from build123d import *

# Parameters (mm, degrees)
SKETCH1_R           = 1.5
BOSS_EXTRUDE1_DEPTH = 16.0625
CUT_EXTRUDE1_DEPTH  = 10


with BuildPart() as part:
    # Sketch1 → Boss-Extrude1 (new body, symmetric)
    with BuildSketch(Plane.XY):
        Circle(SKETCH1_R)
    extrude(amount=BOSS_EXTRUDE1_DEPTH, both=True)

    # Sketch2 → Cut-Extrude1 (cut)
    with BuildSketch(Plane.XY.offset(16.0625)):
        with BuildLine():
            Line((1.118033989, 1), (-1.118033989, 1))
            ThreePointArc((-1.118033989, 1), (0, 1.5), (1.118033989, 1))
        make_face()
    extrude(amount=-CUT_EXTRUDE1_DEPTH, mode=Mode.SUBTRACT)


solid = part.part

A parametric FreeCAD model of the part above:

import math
import FreeCAD as App
import Part
import Sketcher
from FreeCAD import Vector
Q = App.Units.Quantity

doc = App.newDocument("Part")
body = doc.addObject("PartDesign::Body", "Body")

# Sketch on XY plane
sketch1 = doc.addObject("Sketcher::SketchObject", "Sketch")
body.addObject(sketch1)
sketch1.AttachmentSupport = (doc.XY_Plane, [""])
sketch1.MapMode = "FlatFace"
sketch1.addGeometry(Part.Circle(Vector(0, 0, 0), Vector(0, 0, 1), 1.5), False)
sketch1.addConstraint(Sketcher.Constraint("Coincident", 0, 3, -1, 1))
sketch1.addConstraint(Sketcher.Constraint("Diameter", 0, Q("3 mm")))
pad1 = doc.addObject("PartDesign::Pad", "Pad")
body.addObject(pad1)
pad1.Profile = sketch1
pad1.Length = 32.125
pad1.Midplane = True

# Sketch on XY plane
sketch2 = doc.addObject("Sketcher::SketchObject", "Sketch001")
body.addObject(sketch2)
sketch2.AttachmentSupport = (doc.XY_Plane, [""])
sketch2.MapMode = "FlatFace"
sketch2.AttachmentOffset = App.Placement(Vector(0, 0, 16.0625), App.Rotation())
sketch2.addGeometry(Part.LineSegment(Vector(-1.118034, 1, 0), Vector(1.118034, 1, 0)), False)
sketch2.addGeometry(Part.ArcOfCircle(Part.Circle(Vector(0, 0, 0), Vector(0, 0, 1), 1.5), math.radians(41.810315), math.radians(138.189685)), False)
sketch2.addConstraint(Sketcher.Constraint("Coincident", 0, 1, 1, 2))
sketch2.addConstraint(Sketcher.Constraint("Coincident", 1, 1, 0, 2))
sketch2.addConstraint(Sketcher.Constraint("Horizontal", 0))
sketch2.addConstraint(Sketcher.Constraint("Coincident", 1, 3, -1, 1))
sketch2.addConstraint(Sketcher.Constraint("Radius", 1, Q("1.5 mm")))
sketch2.addConstraint(Sketcher.Constraint("DistanceY", -1, 1, 0, 1, Q("1 mm")))
pocket1 = doc.addObject("PartDesign::Pocket", "Pocket")
body.addObject(pocket1)
pocket1.Profile = sketch2
pocket1.Length = 10

doc.recompute()
